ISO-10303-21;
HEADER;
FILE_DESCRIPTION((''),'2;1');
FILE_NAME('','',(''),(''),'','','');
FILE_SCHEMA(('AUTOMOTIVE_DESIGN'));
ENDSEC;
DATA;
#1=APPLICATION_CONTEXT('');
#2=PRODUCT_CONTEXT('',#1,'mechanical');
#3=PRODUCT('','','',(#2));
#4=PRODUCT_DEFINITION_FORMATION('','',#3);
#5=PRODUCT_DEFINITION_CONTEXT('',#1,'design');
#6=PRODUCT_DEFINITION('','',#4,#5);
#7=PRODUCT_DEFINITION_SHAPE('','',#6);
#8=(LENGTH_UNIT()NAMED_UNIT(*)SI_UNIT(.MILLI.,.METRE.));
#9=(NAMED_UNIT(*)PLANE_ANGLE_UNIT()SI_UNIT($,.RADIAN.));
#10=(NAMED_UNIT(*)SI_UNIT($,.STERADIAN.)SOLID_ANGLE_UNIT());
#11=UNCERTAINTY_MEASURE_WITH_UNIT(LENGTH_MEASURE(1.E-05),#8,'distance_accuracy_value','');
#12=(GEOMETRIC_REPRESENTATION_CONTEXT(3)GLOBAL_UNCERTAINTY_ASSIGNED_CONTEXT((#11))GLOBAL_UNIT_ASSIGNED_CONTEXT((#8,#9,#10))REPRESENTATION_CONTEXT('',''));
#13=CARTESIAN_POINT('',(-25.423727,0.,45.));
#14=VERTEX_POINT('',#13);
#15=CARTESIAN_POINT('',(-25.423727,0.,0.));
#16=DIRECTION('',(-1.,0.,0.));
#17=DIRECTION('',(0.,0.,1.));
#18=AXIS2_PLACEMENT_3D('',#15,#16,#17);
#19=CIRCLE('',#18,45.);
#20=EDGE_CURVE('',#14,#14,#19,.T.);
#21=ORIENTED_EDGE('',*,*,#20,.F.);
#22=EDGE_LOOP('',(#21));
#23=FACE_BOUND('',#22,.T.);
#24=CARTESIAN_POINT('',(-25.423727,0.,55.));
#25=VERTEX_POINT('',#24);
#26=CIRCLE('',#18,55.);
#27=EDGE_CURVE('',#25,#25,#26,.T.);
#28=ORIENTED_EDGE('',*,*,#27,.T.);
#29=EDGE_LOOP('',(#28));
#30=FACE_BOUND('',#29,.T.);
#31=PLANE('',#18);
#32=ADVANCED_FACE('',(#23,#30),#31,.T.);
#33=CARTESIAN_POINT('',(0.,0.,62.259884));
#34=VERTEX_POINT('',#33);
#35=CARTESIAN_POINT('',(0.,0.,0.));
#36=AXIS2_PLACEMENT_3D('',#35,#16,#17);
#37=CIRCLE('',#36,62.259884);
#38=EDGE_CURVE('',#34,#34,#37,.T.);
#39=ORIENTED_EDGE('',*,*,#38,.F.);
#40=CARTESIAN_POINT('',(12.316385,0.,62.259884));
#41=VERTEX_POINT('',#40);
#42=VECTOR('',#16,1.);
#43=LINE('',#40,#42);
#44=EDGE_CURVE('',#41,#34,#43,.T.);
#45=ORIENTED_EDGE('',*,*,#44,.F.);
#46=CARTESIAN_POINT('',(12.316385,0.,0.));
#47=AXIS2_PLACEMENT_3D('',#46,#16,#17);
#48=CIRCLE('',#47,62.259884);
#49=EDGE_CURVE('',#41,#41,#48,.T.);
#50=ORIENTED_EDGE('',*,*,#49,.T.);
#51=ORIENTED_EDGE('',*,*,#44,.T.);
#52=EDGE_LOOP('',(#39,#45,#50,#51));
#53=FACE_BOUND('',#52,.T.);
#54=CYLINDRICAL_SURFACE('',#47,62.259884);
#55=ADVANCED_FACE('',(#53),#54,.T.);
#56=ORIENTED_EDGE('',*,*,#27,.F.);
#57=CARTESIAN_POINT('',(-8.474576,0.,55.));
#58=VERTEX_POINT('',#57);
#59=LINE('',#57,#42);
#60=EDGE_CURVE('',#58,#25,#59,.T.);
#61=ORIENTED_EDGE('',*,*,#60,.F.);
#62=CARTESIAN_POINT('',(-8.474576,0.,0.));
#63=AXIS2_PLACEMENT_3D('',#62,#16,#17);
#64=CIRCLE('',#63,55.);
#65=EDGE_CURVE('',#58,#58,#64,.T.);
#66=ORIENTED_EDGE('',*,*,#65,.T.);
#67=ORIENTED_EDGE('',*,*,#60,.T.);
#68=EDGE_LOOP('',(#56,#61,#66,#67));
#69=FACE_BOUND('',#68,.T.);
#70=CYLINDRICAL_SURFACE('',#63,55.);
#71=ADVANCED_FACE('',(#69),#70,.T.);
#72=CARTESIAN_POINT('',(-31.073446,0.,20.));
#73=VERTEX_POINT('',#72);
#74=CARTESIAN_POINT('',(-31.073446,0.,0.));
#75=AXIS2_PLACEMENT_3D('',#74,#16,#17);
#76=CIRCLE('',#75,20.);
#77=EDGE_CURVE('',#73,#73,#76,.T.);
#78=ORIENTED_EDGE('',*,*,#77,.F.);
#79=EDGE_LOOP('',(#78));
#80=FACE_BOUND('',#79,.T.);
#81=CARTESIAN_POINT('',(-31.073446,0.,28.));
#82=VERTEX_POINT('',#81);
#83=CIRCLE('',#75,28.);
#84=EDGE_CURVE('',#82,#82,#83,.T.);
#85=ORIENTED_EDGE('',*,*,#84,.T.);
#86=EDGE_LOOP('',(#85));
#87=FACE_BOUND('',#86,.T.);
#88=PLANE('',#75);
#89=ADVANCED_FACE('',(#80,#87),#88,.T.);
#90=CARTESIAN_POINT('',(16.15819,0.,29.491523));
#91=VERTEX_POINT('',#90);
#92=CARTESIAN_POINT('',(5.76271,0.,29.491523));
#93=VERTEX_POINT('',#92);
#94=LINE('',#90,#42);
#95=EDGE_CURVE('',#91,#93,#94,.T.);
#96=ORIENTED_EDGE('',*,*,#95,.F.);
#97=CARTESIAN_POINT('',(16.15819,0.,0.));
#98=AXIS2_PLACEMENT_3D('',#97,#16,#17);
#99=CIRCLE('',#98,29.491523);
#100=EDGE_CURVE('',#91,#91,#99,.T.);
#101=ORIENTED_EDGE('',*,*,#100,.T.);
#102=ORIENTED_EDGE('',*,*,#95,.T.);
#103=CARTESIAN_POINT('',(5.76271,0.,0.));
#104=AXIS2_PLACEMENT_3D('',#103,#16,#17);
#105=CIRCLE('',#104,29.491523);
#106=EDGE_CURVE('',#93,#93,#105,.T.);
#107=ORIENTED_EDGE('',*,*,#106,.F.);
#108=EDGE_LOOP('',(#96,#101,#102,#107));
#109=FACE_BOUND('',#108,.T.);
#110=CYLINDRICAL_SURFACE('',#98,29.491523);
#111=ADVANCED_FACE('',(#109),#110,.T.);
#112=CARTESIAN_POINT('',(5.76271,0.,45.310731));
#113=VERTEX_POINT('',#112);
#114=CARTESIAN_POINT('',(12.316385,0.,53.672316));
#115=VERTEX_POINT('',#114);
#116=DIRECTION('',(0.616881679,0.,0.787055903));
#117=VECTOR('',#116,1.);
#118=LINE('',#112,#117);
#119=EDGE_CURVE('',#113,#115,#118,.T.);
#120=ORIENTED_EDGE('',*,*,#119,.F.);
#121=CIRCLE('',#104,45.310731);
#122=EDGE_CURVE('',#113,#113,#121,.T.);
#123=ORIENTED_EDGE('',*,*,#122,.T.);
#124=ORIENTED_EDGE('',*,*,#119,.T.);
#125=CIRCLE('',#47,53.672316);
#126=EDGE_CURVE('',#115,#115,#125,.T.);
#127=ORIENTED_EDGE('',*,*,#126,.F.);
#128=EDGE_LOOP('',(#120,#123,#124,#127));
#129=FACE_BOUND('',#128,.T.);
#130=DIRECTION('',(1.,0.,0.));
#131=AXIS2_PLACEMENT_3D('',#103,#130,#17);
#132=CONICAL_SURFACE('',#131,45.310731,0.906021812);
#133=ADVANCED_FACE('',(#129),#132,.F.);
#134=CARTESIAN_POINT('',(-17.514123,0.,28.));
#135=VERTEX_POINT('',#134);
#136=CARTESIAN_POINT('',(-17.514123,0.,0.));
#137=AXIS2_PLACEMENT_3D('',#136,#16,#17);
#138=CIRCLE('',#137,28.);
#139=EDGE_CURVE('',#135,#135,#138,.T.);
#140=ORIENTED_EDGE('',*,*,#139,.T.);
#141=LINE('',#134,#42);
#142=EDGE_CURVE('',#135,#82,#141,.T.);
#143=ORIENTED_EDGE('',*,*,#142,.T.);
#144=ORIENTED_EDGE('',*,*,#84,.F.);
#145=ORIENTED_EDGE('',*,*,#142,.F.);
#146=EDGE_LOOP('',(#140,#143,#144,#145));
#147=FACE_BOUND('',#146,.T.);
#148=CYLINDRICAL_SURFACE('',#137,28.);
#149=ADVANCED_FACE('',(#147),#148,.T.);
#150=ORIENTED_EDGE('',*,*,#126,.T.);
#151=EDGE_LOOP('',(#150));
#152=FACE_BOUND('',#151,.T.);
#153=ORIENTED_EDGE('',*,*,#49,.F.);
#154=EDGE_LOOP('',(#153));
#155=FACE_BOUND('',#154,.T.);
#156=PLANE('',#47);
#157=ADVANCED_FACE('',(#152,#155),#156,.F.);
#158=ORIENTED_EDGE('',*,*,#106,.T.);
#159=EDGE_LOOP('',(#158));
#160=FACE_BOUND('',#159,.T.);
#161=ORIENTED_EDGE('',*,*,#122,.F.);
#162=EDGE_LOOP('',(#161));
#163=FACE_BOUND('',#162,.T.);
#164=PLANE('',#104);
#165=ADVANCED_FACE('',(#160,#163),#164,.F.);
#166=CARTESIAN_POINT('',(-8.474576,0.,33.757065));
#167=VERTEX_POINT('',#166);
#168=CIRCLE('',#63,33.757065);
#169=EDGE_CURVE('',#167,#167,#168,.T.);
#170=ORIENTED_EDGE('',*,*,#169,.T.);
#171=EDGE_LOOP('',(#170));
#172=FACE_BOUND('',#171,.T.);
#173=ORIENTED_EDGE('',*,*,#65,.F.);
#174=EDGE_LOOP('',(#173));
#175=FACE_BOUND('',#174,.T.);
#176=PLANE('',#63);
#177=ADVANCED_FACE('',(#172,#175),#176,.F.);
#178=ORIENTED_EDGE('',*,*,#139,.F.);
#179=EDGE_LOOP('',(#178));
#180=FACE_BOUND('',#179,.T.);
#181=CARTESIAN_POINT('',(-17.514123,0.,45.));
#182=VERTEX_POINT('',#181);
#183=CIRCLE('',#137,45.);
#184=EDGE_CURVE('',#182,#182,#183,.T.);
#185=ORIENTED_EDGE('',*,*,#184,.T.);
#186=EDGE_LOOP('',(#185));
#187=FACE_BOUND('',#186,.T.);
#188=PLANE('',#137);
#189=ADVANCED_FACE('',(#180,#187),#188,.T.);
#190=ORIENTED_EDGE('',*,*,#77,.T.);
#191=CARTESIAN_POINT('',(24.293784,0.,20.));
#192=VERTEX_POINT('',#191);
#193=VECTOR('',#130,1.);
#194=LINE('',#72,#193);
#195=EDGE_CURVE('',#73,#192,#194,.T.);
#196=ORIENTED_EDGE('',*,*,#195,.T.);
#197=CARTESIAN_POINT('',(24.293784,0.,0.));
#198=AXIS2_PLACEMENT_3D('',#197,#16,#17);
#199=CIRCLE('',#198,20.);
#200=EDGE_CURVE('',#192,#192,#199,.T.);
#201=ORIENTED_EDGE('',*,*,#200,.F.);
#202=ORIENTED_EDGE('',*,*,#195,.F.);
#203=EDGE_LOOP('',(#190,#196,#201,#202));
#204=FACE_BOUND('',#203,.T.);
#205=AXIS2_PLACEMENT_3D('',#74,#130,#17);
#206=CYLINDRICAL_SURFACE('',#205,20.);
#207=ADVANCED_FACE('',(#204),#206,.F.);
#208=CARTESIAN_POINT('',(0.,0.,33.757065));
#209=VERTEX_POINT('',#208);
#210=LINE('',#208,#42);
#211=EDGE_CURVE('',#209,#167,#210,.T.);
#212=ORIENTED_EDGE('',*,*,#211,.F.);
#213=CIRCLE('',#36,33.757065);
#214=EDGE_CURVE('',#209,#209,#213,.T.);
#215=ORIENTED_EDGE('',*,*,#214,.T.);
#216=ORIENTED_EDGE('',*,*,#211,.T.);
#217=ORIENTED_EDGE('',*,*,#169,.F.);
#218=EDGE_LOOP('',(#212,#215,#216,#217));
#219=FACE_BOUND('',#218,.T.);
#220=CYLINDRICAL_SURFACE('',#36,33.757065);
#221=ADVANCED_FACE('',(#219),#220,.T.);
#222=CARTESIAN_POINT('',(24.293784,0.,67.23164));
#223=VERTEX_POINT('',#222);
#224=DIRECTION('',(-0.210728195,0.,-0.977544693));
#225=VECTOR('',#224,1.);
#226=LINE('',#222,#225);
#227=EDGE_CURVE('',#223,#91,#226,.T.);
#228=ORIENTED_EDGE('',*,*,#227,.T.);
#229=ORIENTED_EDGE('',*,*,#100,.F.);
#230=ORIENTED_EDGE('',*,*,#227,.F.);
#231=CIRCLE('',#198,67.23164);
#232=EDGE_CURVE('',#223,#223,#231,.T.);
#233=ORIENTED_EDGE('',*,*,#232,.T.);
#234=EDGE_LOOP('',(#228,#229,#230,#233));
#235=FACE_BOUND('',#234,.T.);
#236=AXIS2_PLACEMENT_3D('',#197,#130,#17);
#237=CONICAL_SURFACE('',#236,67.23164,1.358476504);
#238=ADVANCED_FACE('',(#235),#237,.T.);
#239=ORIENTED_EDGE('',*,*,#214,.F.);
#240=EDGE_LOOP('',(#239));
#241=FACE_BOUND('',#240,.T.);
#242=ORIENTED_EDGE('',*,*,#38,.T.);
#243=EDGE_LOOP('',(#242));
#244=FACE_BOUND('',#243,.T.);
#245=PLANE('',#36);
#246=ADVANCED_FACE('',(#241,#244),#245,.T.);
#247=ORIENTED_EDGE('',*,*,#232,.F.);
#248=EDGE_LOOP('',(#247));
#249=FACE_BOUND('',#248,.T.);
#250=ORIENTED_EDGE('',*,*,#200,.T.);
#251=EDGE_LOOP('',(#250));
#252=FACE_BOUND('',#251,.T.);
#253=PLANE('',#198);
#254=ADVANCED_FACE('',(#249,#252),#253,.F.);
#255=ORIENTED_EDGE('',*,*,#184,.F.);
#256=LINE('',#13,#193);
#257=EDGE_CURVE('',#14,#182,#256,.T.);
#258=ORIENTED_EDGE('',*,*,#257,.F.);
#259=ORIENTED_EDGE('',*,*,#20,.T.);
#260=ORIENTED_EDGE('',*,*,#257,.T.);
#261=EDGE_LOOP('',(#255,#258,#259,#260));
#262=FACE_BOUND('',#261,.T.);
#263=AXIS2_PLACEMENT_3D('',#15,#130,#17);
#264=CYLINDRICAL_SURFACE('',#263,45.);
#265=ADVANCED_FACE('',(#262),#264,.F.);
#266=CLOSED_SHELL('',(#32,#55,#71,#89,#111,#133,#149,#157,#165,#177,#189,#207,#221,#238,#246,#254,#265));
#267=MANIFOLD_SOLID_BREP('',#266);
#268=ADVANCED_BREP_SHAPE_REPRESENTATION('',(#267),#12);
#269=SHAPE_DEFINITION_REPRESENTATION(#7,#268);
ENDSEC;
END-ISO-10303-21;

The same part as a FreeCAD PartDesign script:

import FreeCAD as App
import Part
import Sketcher

V = App.Vector


def add_polygon(sketch, points):
    """Adds a closed chain of lines whose ends are joined by coincident constraints."""
    first, n = sketch.GeometryCount, len(points)
    for a, b in zip(points, points[1:] + points[:1]):
        sketch.addGeometry(Part.LineSegment(App.Vector(*a, 0), App.Vector(*b, 0)), False)
    for i in range(n):
        sketch.addConstraint(Sketcher.Constraint("Coincident", first + i, 2, first + (i + 1) % n, 1))

doc = App.newDocument("Part")
body = doc.addObject("PartDesign::Body", "Body")

sketch1 = body.newObject("Sketcher::SketchObject", "Sketch")
sketch1.AttachmentSupport = (doc.getObject("XZ_Plane"), [""])
sketch1.MapMode = "FlatFace"
add_polygon(sketch1, [(24, 20), (24, 67), (16, 29), (6, 29), (6, 45), (12, 54), (12, 62), (0, 62), (0, 34), (-8, 34), (-8, 55), (-25, 55), (-25, 45), (-18, 45), (-18, 28), (-31, 28), (-31, 20)])
sketch1.addConstraint([
    Sketcher.Constraint("Vertical", 0),
    Sketcher.Constraint("Horizontal", 2),
    Sketcher.Constraint("Vertical", 3),
    Sketcher.Constraint("Vertical", 5),
    Sketcher.Constraint("Horizontal", 6),
    Sketcher.Constraint("Vertical", 7),
    Sketcher.Constraint("Horizontal", 8),
    Sketcher.Constraint("Vertical", 9),
    Sketcher.Constraint("Horizontal", 10),
    Sketcher.Constraint("Vertical", 11),
    Sketcher.Constraint("Horizontal", 12),
    Sketcher.Constraint("Vertical", 13),
    Sketcher.Constraint("Horizontal", 14),
    Sketcher.Constraint("Vertical", 15),
    Sketcher.Constraint("Horizontal", 16),
    Sketcher.Constraint("PointOnObject", 6, 2, -2),
    Sketcher.Constraint("DistanceY", 11, 2, 11, 1, 10.0),
    Sketcher.Constraint("DistanceY", 13, 2, 13, 1, 17.0),
    Sketcher.Constraint("DistanceY", 15, 2, 15, 1, 8.0),
    Sketcher.Constraint("DistanceY", -1, 1, 9, 2, 55.0),
    Sketcher.Constraint("DistanceX", 2, 2, 2, 1, 10.39548),
    Sketcher.Constraint("DistanceX", 10, 2, 10, 1, 16.949151),
    Sketcher.Constraint("DistanceX", 16, 1, 16, 2, 55.36723),
    Sketcher.Constraint("DistanceY", 0, 1, 0, 2, 47.23164),
    Sketcher.Constraint("DistanceY", 7, 2, 7, 1, 28.502819),
    Sketcher.Constraint("DistanceX", 4, 2, 0, 2, 11.977399),
    Sketcher.Constraint("Distance", 1, 38.60705),
    Sketcher.Constraint("DistanceX", 6, 2, 6, 1, 12.316385),
    Sketcher.Constraint("DistanceX", 8, 2, 8, 1, 8.474576),
    Sketcher.Constraint("DistanceX", 12, 1, 12, 2, 7.909604),
    Sketcher.Constraint("DistanceY", 3, 1, 3, 2, 15.819208),
    Sketcher.Constraint("DistanceY", 5, 1, 5, 2, 8.587568),
    Sketcher.Constraint("DistanceY", 9, 1, 9, 2, 21.242935),
    Sketcher.Constraint("DistanceX", -1, 1, 1, 2, 16.15819),
])
revolution = body.newObject("PartDesign::Revolution", "Revolution")
revolution.Profile = sketch1
revolution.ReferenceAxis = (sketch1, ["H_Axis"])
revolution.Angle = 360

doc.recompute()
